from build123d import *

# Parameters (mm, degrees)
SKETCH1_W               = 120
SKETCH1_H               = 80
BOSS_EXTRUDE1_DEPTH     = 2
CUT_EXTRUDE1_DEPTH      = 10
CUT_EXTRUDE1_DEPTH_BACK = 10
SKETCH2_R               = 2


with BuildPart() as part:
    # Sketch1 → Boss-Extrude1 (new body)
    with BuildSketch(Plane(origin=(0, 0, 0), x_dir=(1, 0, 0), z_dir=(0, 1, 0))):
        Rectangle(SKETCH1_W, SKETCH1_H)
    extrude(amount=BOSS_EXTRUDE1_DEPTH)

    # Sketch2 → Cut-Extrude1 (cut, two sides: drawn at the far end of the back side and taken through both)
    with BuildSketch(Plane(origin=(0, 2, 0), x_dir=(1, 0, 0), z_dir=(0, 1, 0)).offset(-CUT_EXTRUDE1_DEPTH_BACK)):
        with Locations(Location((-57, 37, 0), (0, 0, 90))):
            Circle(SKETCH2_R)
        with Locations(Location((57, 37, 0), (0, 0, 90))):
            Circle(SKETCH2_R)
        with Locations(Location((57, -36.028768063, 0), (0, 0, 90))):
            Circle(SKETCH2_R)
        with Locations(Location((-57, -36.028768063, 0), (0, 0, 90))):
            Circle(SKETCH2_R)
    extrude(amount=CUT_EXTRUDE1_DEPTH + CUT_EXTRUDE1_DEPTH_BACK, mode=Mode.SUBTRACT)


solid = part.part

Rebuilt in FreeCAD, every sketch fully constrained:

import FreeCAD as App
import Part
import Sketcher

doc = App.newDocument("Part")
body = doc.addObject("PartDesign::Body", "Body")

sketch1 = doc.addObject("Sketcher::SketchObject", "Sketch")
body.addObject(sketch1)
sketch1.AttachmentSupport = (doc.XZ_Plane, [""])
sketch1.MapMode = "FlatFace"
sketch1.addGeometry([
    Part.LineSegment(App.Vector(-60, -40, 0), App.Vector(-60, 40, 0)),
    Part.LineSegment(App.Vector(-60, 40, 0), App.Vector(60, 40, 0)),
    Part.LineSegment(App.Vector(60, 40, 0), App.Vector(60, -40, 0)),
    Part.LineSegment(App.Vector(60, -40, 0), App.Vector(-60, -40, 0)),
], False)
sketch1.addConstraint([
    Sketcher.Constraint("Coincident", 0, 2, 1, 1),
    Sketcher.Constraint("Coincident", 1, 2, 2, 1),
    Sketcher.Constraint("Coincident", 2, 2, 3, 1),
    Sketcher.Constraint("Coincident", 3, 2, 0, 1),
    Sketcher.Constraint("Vertical", 0),
    Sketcher.Constraint("Horizontal", 1),
    Sketcher.Constraint("Vertical", 2),
    Sketcher.Constraint("Horizontal", 3),
    Sketcher.Constraint("Symmetric", 0, 2, 2, 2, -1, 1),
    Sketcher.Constraint("DistanceX", 1, 1, 1, 2, 120.0),
    Sketcher.Constraint("DistanceY", 0, 1, 0, 2, 80.0),
])
pad1 = doc.addObject("PartDesign::Pad", "Pad")
body.addObject(pad1)
pad1.Profile = sketch1
pad1.Length = 2
pad1.Reversed = True

sketch2 = doc.addObject("Sketcher::SketchObject", "Sketch001")
body.addObject(sketch2)
sketch2.AttachmentSupport = (doc.XZ_Plane, [""])
sketch2.MapMode = "FlatFace"
sketch2.AttachmentOffset = App.Placement(App.Vector(0, 0, -2), App.Rotation())
sketch2.addGeometry([
    Part.Circle(App.Vector(-57, -37, 0), App.Vector(0, 0, 1), 2),
    Part.Circle(App.Vector(57, -37, 0), App.Vector(0, 0, 1), 2),
    Part.Circle(App.Vector(57, 36, 0), App.Vector(0, 0, 1), 2),
    Part.Circle(App.Vector(-57, 36, 0), App.Vector(0, 0, 1), 2),
], False)
sketch2.addConstraint([
    Sketcher.Constraint("Equal", 0, 1),
    Sketcher.Constraint("Equal", 1, 2),
    Sketcher.Constraint("Equal", 2, 3),
    Sketcher.Constraint("Symmetric", 0, 3, 1, 3, -2),
    Sketcher.Constraint("Symmetric", 2, 3, 3, 3, -2),
    Sketcher.Constraint("Vertical", 1, 3, 2, 3),
    Sketcher.Constraint("Diameter", 0, 4.0),
    Sketcher.Constraint("DistanceX", 0, 3, -1, 1, 57.0),
    Sketcher.Constraint("DistanceY", 0, 3, -1, 1, 37.0),
    Sketcher.Constraint("DistanceY", -1, 1, 2, 3, 36.028768),
])
pocket1 = doc.addObject("PartDesign::Pocket", "Pocket")
body.addObject(pocket1)
pocket1.Profile = sketch2
pocket1.Type = "ThroughAll"
pocket1.Midplane = True

doc.recompute()
